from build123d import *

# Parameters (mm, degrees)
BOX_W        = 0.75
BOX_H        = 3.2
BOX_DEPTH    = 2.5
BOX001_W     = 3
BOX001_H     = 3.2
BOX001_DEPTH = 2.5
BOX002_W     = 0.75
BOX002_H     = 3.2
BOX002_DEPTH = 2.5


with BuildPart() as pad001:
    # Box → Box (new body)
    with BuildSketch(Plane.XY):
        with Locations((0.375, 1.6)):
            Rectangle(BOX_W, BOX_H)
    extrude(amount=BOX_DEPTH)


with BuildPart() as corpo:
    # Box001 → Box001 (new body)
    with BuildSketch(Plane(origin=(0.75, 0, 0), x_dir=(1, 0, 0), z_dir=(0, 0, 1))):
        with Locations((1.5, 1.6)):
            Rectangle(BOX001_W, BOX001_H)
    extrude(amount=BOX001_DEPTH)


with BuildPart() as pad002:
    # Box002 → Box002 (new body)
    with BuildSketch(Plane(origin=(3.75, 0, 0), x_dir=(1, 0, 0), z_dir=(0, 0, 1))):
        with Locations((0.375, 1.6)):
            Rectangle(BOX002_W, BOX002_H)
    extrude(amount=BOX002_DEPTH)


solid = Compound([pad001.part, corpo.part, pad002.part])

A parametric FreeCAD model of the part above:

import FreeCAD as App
import Part
import Sketcher

doc = App.newDocument("Part")
body = doc.addObject("PartDesign::Body", "Body")

# Sketch on XY plane
sketch1 = doc.addObject("Sketcher::SketchObject", "Sketch")
body.addObject(sketch1)
sketch1.AttachmentSupport = (doc.XY_Plane, [""])
sketch1.MapMode = "FlatFace"
sketch1.addGeometry(Part.LineSegment(App.Vector(0, 3.2, 0), App.Vector(0, 0, 0)), False)
sketch1.addGeometry(Part.LineSegment(App.Vector(0, 0, 0), App.Vector(0.75, 0, 0)), False)
sketch1.addGeometry(Part.LineSegment(App.Vector(0.75, 0, 0), App.Vector(0.75, 3.2, 0)), False)
sketch1.addGeometry(Part.LineSegment(App.Vector(0.75, 3.2, 0), App.Vector(0, 3.2, 0)), False)
sketch1.addConstraint(Sketcher.Constraint("Coincident", 0, 2, 1, 1))
sketch1.addConstraint(Sketcher.Constraint("Coincident", 1, 2, 2, 1))
sketch1.addConstraint(Sketcher.Constraint("Coincident", 2, 2, 3, 1))
sketch1.addConstraint(Sketcher.Constraint("Coincident", 3, 2, 0, 1))
sketch1.addConstraint(Sketcher.Constraint("Vertical", 0))
sketch1.addConstraint(Sketcher.Constraint("Horizontal", 1))
sketch1.addConstraint(Sketcher.Constraint("Vertical", 2))
sketch1.addConstraint(Sketcher.Constraint("Horizontal", 3))
sketch1.addConstraint(Sketcher.Constraint("Coincident", 0, 2, -1, 1))
sketch1.addConstraint(Sketcher.Constraint("DistanceY", 0, 2, 0, 1, 3.2))
sketch1.addConstraint(Sketcher.Constraint("DistanceX", 1, 1, 1, 2, 0.75))
pad1 = doc.addObject("PartDesign::Pad", "Pad")
body.addObject(pad1)
pad1.Profile = sketch1
pad1.Length = 2.5
body2 = doc.addObject("PartDesign::Body", "Body001")

# Sketch on XY plane
sketch2 = doc.addObject("Sketcher::SketchObject", "Sketch001")
body2.addObject(sketch2)
sketch2.AttachmentSupport = (doc.getObject("XY_Plane001"), [""])
sketch2.MapMode = "FlatFace"
sketch2.addGeometry(Part.LineSegment(App.Vector(0.75, 3.2, 0), App.Vector(0.75, 0, 0)), False)
sketch2.addGeometry(Part.LineSegment(App.Vector(0.75, 0, 0), App.Vector(3.75, 0, 0)), False)
sketch2.addGeometry(Part.LineSegment(App.Vector(3.75, 0, 0), App.Vector(3.75, 3.2, 0)), False)
sketch2.addGeometry(Part.LineSegment(App.Vector(3.75, 3.2, 0), App.Vector(0.75, 3.2, 0)), False)
sketch2.addConstraint(Sketcher.Constraint("Coincident", 0, 2, 1, 1))
sketch2.addConstraint(Sketcher.Constraint("Coincident", 1, 2, 2, 1))
sketch2.addConstraint(Sketcher.Constraint("Coincident", 2, 2, 3, 1))
sketch2.addConstraint(Sketcher.Constraint("Coincident", 3, 2, 0, 1))
sketch2.addConstraint(Sketcher.Constraint("Vertical", 0))
sketch2.addConstraint(Sketcher.Constraint("Horizontal", 1))
sketch2.addConstraint(Sketcher.Constraint("Vertical", 2))
sketch2.addConstraint(Sketcher.Constraint("Horizontal", 3))
sketch2.addConstraint(Sketcher.Constraint("PointOnObject", 0, 2, -1))
sketch2.addConstraint(Sketcher.Constraint("DistanceX", 1, 1, 1, 2, 3.0))
sketch2.addConstraint(Sketcher.Constraint("DistanceY", 0, 2, 0, 1, 3.2))
sketch2.addConstraint(Sketcher.Constraint("DistanceX", -1, 1, 0, 2, 0.75))
pad2 = doc.addObject("PartDesign::Pad", "Pad001")
body2.addObject(pad2)
pad2.Profile = sketch2
pad2.Length = 2.5
body3 = doc.addObject("PartDesign::Body", "Body002")

# Sketch on XY plane
sketch3 = doc.addObject("Sketcher::SketchObject", "Sketch002")
body3.addObject(sketch3)
sketch3.AttachmentSupport = (doc.getObject("XY_Plane002"), [""])
sketch3.MapMode = "FlatFace"
sketch3.addGeometry(Part.LineSegment(App.Vector(3.75, 3.2, 0), App.Vector(3.75, 0, 0)), False)
sketch3.addGeometry(Part.LineSegment(App.Vector(3.75, 0, 0), App.Vector(4.5, 0, 0)), False)
sketch3.addGeometry(Part.LineSegment(App.Vector(4.5, 0, 0), App.Vector(4.5, 3.2, 0)), False)
sketch3.addGeometry(Part.LineSegment(App.Vector(4.5, 3.2, 0), App.Vector(3.75, 3.2, 0)), False)
sketch3.addConstraint(Sketcher.Constraint("Coincident", 0, 2, 1, 1))
sketch3.addConstraint(Sketcher.Constraint("Coincident", 1, 2, 2, 1))
sketch3.addConstraint(Sketcher.Constraint("Coincident", 2, 2, 3, 1))
sketch3.addConstraint(Sketcher.Constraint("Coincident", 3, 2, 0, 1))
sketch3.addConstraint(Sketcher.Constraint("Vertical", 0))
sketch3.addConstraint(Sketcher.Constraint("Horizontal", 1))
sketch3.addConstraint(Sketcher.Constraint("Vertical", 2))
sketch3.addConstraint(Sketcher.Constraint("Horizontal", 3))
sketch3.addConstraint(Sketcher.Constraint("PointOnObject", 0, 2, -1))
sketch3.addConstraint(Sketcher.Constraint("DistanceY", 0, 2, 0, 1, 3.2))
sketch3.addConstraint(Sketcher.Constraint("DistanceX", 1, 1, 1, 2, 0.75))
sketch3.addConstraint(Sketcher.Constraint("DistanceX", -1, 1, 1, 2, 4.5))
pad3 = doc.addObject("PartDesign::Pad", "Pad002")
body3.addObject(pad3)
pad3.Profile = sketch3
pad3.Length = 2.5

doc.recompute()
